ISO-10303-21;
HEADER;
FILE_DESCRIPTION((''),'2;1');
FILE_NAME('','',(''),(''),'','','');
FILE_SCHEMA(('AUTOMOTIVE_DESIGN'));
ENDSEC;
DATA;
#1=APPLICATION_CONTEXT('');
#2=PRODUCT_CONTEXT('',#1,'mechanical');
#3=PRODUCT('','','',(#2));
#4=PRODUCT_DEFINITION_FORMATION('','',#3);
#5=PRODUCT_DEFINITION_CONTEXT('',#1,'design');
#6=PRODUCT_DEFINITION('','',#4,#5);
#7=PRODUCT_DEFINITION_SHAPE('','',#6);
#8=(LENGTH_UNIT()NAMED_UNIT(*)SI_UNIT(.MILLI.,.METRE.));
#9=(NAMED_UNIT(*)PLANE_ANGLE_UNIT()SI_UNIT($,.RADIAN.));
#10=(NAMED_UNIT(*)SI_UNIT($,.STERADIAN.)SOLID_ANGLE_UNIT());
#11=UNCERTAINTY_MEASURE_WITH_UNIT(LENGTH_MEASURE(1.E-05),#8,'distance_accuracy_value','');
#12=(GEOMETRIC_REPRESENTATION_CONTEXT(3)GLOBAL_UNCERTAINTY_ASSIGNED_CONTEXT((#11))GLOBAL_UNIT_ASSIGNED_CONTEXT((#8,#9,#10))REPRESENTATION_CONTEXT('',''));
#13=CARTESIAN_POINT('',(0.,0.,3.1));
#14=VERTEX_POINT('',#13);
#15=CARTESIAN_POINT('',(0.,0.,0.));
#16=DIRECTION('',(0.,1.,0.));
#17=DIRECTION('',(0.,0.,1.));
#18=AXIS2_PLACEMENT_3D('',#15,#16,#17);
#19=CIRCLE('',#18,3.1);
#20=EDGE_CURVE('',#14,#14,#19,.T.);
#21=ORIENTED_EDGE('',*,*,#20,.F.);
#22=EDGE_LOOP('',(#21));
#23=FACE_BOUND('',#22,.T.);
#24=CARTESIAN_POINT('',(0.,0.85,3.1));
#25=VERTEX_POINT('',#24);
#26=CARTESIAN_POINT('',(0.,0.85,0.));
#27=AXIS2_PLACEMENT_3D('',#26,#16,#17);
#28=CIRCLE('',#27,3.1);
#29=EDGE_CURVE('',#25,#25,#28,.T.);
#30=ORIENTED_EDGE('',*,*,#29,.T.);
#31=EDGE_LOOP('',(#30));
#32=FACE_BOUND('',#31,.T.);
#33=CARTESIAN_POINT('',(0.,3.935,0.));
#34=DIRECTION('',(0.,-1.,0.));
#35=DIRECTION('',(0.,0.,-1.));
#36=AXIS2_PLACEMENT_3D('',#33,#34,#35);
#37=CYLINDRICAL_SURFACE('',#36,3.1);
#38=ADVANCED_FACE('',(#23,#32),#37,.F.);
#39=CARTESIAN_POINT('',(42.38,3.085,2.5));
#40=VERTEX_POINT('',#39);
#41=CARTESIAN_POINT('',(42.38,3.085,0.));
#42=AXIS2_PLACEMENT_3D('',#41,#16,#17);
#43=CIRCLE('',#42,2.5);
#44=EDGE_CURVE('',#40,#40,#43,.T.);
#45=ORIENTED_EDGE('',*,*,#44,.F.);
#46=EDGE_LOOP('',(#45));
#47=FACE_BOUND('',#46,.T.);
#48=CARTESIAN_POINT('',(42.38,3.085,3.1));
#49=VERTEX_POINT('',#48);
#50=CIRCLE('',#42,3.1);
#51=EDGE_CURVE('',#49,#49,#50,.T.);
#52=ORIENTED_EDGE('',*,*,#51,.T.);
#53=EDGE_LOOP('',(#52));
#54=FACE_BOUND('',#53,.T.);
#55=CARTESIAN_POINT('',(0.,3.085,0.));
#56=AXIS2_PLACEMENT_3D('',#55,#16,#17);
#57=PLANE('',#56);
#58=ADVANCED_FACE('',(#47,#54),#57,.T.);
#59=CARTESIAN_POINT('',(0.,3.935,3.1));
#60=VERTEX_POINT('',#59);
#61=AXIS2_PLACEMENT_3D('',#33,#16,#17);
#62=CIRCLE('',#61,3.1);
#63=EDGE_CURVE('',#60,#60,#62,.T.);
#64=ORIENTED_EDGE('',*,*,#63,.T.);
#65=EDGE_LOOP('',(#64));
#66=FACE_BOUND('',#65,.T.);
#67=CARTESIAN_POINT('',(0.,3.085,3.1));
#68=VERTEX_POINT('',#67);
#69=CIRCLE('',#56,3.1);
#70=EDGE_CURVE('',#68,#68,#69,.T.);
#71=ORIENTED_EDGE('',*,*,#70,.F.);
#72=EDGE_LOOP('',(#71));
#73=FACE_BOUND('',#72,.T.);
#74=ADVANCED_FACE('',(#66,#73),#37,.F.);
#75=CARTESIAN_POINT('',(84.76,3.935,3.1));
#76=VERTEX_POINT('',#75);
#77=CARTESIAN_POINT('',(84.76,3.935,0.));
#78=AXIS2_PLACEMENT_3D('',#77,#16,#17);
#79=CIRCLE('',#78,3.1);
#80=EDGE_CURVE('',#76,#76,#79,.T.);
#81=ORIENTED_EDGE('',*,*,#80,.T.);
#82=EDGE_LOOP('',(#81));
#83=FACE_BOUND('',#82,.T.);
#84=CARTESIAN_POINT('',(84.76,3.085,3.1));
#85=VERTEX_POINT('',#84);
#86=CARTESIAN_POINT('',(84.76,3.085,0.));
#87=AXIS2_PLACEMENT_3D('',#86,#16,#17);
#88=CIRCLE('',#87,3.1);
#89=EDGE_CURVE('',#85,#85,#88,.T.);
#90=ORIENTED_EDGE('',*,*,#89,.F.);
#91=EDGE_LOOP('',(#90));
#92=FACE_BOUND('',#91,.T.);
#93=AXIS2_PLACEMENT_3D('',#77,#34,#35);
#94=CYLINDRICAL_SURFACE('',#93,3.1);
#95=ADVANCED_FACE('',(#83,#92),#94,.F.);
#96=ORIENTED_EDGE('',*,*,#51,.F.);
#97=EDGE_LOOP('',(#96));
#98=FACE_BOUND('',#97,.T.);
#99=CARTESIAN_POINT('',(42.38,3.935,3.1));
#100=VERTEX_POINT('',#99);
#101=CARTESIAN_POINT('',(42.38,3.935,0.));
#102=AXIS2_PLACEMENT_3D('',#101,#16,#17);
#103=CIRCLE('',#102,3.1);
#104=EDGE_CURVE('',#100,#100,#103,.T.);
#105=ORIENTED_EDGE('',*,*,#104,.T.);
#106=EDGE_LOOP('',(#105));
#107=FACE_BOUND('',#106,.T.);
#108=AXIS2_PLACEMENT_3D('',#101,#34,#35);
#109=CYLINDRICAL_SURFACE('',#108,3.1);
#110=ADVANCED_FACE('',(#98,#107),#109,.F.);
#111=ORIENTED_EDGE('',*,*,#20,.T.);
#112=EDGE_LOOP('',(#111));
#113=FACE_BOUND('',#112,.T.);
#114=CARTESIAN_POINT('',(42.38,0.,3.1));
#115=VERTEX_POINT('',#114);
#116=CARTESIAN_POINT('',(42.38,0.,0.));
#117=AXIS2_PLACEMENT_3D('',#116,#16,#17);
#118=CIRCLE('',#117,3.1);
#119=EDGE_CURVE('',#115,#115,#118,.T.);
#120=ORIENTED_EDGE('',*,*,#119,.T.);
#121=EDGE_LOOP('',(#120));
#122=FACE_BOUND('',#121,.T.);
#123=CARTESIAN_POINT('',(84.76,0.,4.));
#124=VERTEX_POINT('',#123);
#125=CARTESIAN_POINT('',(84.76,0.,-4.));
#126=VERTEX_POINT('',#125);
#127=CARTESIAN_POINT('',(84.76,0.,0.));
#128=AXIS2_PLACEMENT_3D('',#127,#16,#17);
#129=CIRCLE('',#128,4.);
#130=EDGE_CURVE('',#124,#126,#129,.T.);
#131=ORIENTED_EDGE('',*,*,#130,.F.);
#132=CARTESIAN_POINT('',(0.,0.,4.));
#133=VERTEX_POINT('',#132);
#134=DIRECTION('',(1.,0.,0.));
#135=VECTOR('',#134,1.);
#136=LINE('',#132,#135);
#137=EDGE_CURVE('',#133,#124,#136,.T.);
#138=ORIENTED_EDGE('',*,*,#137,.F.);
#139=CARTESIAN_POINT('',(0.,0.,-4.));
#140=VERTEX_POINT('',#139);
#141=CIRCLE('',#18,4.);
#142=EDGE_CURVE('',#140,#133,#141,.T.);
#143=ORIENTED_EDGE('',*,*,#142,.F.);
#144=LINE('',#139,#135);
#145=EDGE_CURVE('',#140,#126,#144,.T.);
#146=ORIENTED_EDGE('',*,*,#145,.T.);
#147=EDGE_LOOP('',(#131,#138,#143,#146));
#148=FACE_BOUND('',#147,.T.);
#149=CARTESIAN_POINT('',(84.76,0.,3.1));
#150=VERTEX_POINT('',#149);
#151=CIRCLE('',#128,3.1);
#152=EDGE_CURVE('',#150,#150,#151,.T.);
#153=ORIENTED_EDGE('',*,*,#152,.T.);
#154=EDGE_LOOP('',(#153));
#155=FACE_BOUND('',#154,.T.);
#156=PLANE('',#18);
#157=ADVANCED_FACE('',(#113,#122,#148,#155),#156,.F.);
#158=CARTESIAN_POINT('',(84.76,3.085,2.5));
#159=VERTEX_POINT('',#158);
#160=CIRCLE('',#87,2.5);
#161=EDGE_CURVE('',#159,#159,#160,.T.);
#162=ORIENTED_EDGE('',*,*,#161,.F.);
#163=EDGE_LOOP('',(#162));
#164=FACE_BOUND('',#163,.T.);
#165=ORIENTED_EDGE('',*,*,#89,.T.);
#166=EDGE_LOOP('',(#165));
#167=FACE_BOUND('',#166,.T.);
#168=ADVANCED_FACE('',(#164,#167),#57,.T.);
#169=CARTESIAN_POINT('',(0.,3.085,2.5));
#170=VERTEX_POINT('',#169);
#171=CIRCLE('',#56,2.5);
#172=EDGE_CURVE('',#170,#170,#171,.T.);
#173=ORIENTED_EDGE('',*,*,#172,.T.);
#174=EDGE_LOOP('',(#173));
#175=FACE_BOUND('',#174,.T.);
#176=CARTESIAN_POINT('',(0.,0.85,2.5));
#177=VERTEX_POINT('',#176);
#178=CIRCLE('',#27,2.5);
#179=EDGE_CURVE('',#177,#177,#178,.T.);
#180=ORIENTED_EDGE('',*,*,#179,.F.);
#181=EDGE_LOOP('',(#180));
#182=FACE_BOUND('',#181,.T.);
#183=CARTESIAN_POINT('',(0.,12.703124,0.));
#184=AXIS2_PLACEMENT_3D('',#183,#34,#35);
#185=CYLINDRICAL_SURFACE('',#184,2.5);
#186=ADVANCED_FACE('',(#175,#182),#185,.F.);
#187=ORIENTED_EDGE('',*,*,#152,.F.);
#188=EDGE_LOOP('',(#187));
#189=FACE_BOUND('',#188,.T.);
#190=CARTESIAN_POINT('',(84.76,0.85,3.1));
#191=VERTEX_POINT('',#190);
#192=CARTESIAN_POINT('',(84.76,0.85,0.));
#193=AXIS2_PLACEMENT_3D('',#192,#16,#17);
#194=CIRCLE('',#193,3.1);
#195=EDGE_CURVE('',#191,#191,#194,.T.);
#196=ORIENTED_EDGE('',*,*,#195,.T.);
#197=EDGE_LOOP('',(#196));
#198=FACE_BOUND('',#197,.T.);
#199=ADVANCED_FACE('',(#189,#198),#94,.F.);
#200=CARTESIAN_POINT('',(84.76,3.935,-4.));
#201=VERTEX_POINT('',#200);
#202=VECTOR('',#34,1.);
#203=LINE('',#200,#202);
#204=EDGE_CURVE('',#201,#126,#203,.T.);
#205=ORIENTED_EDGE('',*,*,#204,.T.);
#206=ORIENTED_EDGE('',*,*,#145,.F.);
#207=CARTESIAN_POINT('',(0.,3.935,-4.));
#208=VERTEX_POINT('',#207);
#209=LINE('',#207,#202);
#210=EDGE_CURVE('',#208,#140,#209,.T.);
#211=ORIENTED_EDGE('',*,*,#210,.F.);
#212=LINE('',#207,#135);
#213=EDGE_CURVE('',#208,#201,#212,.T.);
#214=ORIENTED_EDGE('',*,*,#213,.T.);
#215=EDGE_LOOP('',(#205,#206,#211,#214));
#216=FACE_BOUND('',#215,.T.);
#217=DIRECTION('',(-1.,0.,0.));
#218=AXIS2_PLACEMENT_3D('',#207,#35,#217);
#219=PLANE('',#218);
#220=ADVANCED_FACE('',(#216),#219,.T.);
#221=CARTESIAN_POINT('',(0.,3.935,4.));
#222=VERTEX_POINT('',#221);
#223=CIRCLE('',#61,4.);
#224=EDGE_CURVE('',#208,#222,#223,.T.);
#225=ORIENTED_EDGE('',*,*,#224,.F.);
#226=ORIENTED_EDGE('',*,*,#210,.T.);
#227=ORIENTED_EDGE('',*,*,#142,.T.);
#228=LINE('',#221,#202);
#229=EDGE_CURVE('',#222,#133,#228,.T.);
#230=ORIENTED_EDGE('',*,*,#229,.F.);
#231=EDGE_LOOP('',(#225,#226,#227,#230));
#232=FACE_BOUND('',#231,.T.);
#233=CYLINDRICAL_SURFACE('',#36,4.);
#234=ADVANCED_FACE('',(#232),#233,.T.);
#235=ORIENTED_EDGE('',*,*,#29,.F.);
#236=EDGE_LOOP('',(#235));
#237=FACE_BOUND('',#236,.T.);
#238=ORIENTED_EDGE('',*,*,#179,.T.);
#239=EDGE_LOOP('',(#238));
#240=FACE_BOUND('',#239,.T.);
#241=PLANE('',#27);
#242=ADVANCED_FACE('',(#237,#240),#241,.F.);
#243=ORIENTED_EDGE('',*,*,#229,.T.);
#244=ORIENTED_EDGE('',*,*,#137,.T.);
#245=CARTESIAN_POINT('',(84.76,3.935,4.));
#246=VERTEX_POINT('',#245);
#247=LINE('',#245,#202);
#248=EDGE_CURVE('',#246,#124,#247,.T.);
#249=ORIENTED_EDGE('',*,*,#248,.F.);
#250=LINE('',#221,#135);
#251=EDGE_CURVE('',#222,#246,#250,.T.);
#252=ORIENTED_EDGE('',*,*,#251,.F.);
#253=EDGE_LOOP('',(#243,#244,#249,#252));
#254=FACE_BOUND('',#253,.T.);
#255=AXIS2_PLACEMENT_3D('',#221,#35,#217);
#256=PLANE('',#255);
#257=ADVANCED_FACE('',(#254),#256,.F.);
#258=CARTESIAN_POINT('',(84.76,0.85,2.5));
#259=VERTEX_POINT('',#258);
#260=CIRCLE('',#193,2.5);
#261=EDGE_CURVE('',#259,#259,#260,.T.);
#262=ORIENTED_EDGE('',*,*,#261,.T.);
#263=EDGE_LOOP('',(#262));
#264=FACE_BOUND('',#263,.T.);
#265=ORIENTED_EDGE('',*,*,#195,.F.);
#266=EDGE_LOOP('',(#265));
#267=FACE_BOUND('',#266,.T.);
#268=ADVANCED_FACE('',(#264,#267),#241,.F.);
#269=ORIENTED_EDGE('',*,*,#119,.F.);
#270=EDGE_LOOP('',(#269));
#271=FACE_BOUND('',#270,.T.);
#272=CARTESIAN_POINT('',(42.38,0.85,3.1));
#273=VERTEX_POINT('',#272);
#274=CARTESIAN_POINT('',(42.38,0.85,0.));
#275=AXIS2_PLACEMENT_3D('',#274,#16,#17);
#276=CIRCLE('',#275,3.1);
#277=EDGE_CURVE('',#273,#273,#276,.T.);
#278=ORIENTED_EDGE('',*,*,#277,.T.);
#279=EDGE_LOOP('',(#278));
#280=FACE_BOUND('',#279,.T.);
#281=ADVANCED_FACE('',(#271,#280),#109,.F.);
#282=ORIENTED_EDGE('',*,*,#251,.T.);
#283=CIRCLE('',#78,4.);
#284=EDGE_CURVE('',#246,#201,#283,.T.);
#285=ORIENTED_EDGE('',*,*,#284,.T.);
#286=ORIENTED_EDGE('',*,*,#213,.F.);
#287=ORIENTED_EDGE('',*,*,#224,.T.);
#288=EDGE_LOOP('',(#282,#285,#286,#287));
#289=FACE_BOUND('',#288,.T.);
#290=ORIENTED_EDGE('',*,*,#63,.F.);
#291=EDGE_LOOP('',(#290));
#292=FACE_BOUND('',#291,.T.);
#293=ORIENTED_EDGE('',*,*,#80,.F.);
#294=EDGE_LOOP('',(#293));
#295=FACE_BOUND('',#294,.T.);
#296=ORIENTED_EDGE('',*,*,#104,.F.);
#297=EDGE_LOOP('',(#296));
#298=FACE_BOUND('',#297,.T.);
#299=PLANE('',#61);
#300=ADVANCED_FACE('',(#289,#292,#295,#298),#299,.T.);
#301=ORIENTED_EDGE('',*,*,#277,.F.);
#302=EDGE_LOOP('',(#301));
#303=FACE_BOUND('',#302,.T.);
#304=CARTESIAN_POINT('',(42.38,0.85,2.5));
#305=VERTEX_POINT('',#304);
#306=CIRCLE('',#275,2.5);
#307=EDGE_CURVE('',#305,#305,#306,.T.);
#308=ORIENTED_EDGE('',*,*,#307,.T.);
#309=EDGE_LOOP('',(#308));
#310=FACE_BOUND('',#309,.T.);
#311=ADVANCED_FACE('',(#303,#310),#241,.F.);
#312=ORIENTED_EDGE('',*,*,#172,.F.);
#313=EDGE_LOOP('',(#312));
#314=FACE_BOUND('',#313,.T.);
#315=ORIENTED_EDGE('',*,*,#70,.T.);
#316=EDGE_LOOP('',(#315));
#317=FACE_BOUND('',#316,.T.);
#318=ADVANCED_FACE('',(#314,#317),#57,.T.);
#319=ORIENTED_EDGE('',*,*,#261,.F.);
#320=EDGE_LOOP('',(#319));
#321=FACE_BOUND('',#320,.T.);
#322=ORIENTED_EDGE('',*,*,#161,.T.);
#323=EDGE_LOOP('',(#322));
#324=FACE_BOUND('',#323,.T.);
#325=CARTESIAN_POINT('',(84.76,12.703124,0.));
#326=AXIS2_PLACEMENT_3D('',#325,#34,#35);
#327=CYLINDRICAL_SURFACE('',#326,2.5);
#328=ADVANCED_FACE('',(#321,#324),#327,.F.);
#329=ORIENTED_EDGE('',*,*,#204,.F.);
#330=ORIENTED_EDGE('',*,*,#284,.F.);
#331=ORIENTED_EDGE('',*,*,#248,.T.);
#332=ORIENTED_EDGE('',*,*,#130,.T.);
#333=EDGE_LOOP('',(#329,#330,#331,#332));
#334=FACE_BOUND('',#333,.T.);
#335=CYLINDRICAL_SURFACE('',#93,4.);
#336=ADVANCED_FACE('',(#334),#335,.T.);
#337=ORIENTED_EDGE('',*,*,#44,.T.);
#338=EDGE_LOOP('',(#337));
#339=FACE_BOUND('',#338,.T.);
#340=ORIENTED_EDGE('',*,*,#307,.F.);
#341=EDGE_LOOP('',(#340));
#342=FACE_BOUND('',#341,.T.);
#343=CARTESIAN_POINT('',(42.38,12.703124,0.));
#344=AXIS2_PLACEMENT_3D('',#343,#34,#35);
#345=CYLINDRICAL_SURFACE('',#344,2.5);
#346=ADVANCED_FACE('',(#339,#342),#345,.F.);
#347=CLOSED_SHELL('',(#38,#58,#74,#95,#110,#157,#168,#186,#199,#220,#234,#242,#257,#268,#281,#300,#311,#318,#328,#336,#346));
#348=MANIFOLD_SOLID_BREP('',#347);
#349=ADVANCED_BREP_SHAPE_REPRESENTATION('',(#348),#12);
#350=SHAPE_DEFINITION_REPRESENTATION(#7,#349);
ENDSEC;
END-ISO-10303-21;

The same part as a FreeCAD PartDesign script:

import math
import FreeCAD as App
import Part
import Sketcher

doc = App.newDocument("Part")
body = doc.addObject("PartDesign::Body", "Body")

sketch1 = body.newObject("Sketcher::SketchObject", "Sketch")
sketch1.AttachmentSupport = (doc.getObject("XZ_Plane"), [""])
sketch1.MapMode = "FlatFace"
sketch1.addGeometry(Part.LineSegment(App.Vector(84.76, -4, 0), App.Vector(0, -4, 0)), False)
sketch1.addGeometry(Part.ArcOfCircle(Part.Circle(App.Vector(0, 0, 0), App.Vector(0, 0, 1), 4), math.radians(90), math.radians(270)), False)
sketch1.addGeometry(Part.LineSegment(App.Vector(0, 4, 0), App.Vector(84.76, 4, 0)), False)
sketch1.addGeometry(Part.ArcOfCircle(Part.Circle(App.Vector(84.76, 0, 0), App.Vector(0, 0, 1), 4), math.radians(-90), math.radians(90)), False)
sketch1.addGeometry(Part.Circle(App.Vector(84.76, 0, 0), App.Vector(0, 0, 1), 3.1), False)
sketch1.addGeometry(Part.Circle(App.Vector(42.38, 0, 0), App.Vector(0, 0, 1), 3.1), False)
sketch1.addGeometry(Part.Circle(App.Vector(0, 0, 0), App.Vector(0, 0, 1), 3.1), False)
sketch1.addConstraint(Sketcher.Constraint("Tangent", 0, 2, 1, 2))
sketch1.addConstraint(Sketcher.Constraint("Tangent", 1, 1, 2, 1))
sketch1.addConstraint(Sketcher.Constraint("Tangent", 2, 2, 3, 2))
sketch1.addConstraint(Sketcher.Constraint("Tangent", 3, 1, 0, 1))
sketch1.addConstraint(Sketcher.Constraint("Horizontal", 0))
sketch1.addConstraint(Sketcher.Constraint("Horizontal", 2))
sketch1.addConstraint(Sketcher.Constraint("Coincident", 1, 3, -1, 1))
sketch1.addConstraint(Sketcher.Constraint("Coincident", 6, 3, -1, 1))
sketch1.addConstraint(Sketcher.Constraint("Coincident", 4, 3, 3, 3))
sketch1.addConstraint(Sketcher.Constraint("Equal", 4, 5))
sketch1.addConstraint(Sketcher.Constraint("Equal", 5, 6))
sketch1.addConstraint(Sketcher.Constraint("PointOnObject", 5, 3, -1))
sketch1.addConstraint(Sketcher.Constraint("Radius", 1, 4.0))
sketch1.addConstraint(Sketcher.Constraint("Diameter", 4, 6.2))
sketch1.addConstraint(Sketcher.Constraint("DistanceX", 0, 2, 0, 1, 84.76))
sketch1.addConstraint(Sketcher.Constraint("DistanceX", -1, 1, 5, 3, 42.38))
pad1 = body.newObject("PartDesign::Pad", "Pad")
pad1.Profile = sketch1
pad1.Length = 3.935
pad1.Reversed = True

sketch2 = body.newObject("Sketcher::SketchObject", "Sketch001")
sketch2.AttachmentSupport = (doc.getObject("XZ_Plane"), [""])
sketch2.MapMode = "FlatFace"
sketch2.AttachmentOffset = App.Placement(App.Vector(0, 0, -0.85), App.Rotation())
sketch2.addGeometry(Part.Circle(App.Vector(0, 0, 0), App.Vector(0, 0, 1), 3.1), False)
sketch2.addGeometry(Part.Circle(App.Vector(0, 0, 0), App.Vector(0, 0, 1), 2.5), False)
sketch2.addGeometry(Part.Circle(App.Vector(84.76, 0, 0), App.Vector(0, 0, 1), 3.1), False)
sketch2.addGeometry(Part.Circle(App.Vector(84.76, 0, 0), App.Vector(0, 0, 1), 2.5), False)
sketch2.addGeometry(Part.Circle(App.Vector(42.38, 0, 0), App.Vector(0, 0, 1), 3.1), False)
sketch2.addGeometry(Part.Circle(App.Vector(42.38, 0, 0), App.Vector(0, 0, 1), 2.5), False)
sketch2.addConstraint(Sketcher.Constraint("Coincident", 0, 3, -1, 1))
sketch2.addConstraint(Sketcher.Constraint("Coincident", 1, 3, -1, 1))
sketch2.addConstraint(Sketcher.Constraint("Coincident", 3, 3, 2, 3))
sketch2.addConstraint(Sketcher.Constraint("Coincident", 5, 3, 4, 3))
sketch2.addConstraint(Sketcher.Constraint("Equal", 0, 2))
sketch2.addConstraint(Sketcher.Constraint("Equal", 1, 3))
sketch2.addConstraint(Sketcher.Constraint("Equal", 2, 4))
sketch2.addConstraint(Sketcher.Constraint("Equal", 3, 5))
sketch2.addConstraint(Sketcher.Constraint("PointOnObject", 2, 3, -1))
sketch2.addConstraint(Sketcher.Constraint("PointOnObject", 4, 3, -1))
sketch2.addConstraint(Sketcher.Constraint("Diameter", 1, 5.0))
sketch2.addConstraint(Sketcher.Constraint("Diameter", 0, 6.2))
sketch2.addConstraint(Sketcher.Constraint("DistanceX", -1, 1, 2, 3, 84.76))
sketch2.addConstraint(Sketcher.Constraint("DistanceX", -1, 1, 4, 3, 42.38))
pad2 = body.newObject("PartDesign::Pad", "Pad001")
pad2.Profile = sketch2
pad2.Length = 2.235
pad2.Reversed = True

doc.recompute()
